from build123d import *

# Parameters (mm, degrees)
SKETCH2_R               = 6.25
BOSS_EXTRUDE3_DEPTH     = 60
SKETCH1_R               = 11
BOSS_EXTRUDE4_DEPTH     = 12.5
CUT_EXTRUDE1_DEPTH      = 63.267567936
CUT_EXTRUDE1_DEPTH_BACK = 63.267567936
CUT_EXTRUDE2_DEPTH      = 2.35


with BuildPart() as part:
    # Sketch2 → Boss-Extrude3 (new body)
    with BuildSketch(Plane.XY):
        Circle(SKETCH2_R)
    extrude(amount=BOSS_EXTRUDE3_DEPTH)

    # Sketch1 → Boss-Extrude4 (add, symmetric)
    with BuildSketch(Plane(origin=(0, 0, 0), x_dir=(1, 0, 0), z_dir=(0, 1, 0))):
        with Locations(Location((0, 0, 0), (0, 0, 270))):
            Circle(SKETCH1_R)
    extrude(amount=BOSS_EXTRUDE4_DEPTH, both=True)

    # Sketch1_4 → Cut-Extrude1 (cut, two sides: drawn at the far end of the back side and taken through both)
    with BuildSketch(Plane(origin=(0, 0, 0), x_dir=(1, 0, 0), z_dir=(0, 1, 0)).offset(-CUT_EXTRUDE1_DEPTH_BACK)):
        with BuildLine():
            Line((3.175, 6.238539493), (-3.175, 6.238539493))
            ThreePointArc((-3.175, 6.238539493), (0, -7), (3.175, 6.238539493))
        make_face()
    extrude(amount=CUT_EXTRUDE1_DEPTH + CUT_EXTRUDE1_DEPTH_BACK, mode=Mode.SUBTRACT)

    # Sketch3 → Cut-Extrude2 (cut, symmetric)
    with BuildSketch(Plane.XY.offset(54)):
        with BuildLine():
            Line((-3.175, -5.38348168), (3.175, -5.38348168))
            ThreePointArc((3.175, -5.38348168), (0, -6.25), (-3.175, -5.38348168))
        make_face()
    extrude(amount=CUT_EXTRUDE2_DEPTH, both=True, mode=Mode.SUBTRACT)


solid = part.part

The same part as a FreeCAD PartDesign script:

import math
import FreeCAD as App
import Part
import Sketcher
from FreeCAD import Vector
Q = App.Units.Quantity

doc = App.newDocument("Part")
body = doc.addObject("PartDesign::Body", "Body")

# Sketch on XY plane
sketch1 = doc.addObject("Sketcher::SketchObject", "Sketch")
body.addObject(sketch1)
sketch1.AttachmentSupport = (doc.XY_Plane, [""])
sketch1.MapMode = "FlatFace"
sketch1.addGeometry(Part.Circle(Vector(0, 0, 0), Vector(0, 0, 1), 6), False)
sketch1.addConstraint([
    Sketcher.Constraint("Coincident", 0, 3, -1, 1),
    Sketcher.Constraint("Diameter", 0, Q("12.5 mm")),
])
pad1 = doc.addObject("PartDesign::Pad", "Pad")
body.addObject(pad1)
pad1.Profile = sketch1
pad1.Length = 60

# Sketch on XZ plane
sketch2 = doc.addObject("Sketcher::SketchObject", "Sketch001")
body.addObject(sketch2)
sketch2.AttachmentSupport = (doc.XZ_Plane, [""])
sketch2.MapMode = "FlatFace"
sketch2.addGeometry(Part.Circle(Vector(0, 0, 0), Vector(0, 0, 1), 11), False)
sketch2.addConstraint([
    Sketcher.Constraint("Coincident", 0, 3, -1, 1),
    Sketcher.Constraint("Diameter", 0, Q("22 mm")),
])
pad2 = doc.addObject("PartDesign::Pad", "Pad001")
body.addObject(pad2)
pad2.Profile = sketch2
pad2.Length = 25
pad2.Midplane = True

# Sketch on XZ plane
sketch3 = doc.addObject("Sketcher::SketchObject", "Sketch002")
body.addObject(sketch3)
sketch3.AttachmentSupport = (doc.XZ_Plane, [""])
sketch3.MapMode = "FlatFace"
sketch3.addGeometry([
    Part.LineSegment(Vector(3, -6, 0), Vector(-3, -6, 0)),
    Part.ArcOfCircle(Part.Circle(Vector(0, 0, 0), Vector(0, 0, 1), 7), math.radians(-63), math.radians(243)),
], False)
sketch3.addConstraint([
    Sketcher.Constraint("Coincident", 0, 1, 1, 1),
    Sketcher.Constraint("Coincident", 1, 2, 0, 2),
    Sketcher.Constraint("Horizontal", 0),
    Sketcher.Constraint("Coincident", 1, 3, -1, 1),
    Sketcher.Constraint("Radius", 1, Q("7 mm")),
    Sketcher.Constraint("DistanceX", 0, 2, 0, 1, Q("6.35 mm")),
])
pocket1 = doc.addObject("PartDesign::Pocket", "Pocket")
body.addObject(pocket1)
pocket1.Profile = sketch3
pocket1.Type = "ThroughAll"
pocket1.Midplane = True

# Sketch on XY plane
sketch4 = doc.addObject("Sketcher::SketchObject", "Sketch003")
body.addObject(sketch4)
sketch4.AttachmentSupport = (doc.XY_Plane, [""])
sketch4.MapMode = "FlatFace"
sketch4.AttachmentOffset = App.Placement(Vector(0, 0, 54), App.Rotation())
sketch4.addGeometry([
    Part.LineSegment(Vector(3, -5, 0), Vector(-3, -5, 0)),
    Part.ArcOfCircle(Part.Circle(Vector(0, 0, 0), Vector(0, 0, 1), 6), math.radians(-121), math.radians(-59)),
], False)
sketch4.addConstraint([
    Sketcher.Constraint("Coincident", 0, 1, 1, 2),
    Sketcher.Constraint("Coincident", 1, 1, 0, 2),
    Sketcher.Constraint("Horizontal", 0),
    Sketcher.Constraint("Coincident", 1, 3, -1, 1),
    Sketcher.Constraint("Radius", 1, Q("6.25 mm")),
    Sketcher.Constraint("DistanceX", 0, 2, 0, 1, Q("6.35 mm")),
])
pocket2 = doc.addObject("PartDesign::Pocket", "Pocket001")
body.addObject(pocket2)
pocket2.Profile = sketch4
pocket2.Length = 4.7
pocket2.Midplane = True

doc.recompute()
